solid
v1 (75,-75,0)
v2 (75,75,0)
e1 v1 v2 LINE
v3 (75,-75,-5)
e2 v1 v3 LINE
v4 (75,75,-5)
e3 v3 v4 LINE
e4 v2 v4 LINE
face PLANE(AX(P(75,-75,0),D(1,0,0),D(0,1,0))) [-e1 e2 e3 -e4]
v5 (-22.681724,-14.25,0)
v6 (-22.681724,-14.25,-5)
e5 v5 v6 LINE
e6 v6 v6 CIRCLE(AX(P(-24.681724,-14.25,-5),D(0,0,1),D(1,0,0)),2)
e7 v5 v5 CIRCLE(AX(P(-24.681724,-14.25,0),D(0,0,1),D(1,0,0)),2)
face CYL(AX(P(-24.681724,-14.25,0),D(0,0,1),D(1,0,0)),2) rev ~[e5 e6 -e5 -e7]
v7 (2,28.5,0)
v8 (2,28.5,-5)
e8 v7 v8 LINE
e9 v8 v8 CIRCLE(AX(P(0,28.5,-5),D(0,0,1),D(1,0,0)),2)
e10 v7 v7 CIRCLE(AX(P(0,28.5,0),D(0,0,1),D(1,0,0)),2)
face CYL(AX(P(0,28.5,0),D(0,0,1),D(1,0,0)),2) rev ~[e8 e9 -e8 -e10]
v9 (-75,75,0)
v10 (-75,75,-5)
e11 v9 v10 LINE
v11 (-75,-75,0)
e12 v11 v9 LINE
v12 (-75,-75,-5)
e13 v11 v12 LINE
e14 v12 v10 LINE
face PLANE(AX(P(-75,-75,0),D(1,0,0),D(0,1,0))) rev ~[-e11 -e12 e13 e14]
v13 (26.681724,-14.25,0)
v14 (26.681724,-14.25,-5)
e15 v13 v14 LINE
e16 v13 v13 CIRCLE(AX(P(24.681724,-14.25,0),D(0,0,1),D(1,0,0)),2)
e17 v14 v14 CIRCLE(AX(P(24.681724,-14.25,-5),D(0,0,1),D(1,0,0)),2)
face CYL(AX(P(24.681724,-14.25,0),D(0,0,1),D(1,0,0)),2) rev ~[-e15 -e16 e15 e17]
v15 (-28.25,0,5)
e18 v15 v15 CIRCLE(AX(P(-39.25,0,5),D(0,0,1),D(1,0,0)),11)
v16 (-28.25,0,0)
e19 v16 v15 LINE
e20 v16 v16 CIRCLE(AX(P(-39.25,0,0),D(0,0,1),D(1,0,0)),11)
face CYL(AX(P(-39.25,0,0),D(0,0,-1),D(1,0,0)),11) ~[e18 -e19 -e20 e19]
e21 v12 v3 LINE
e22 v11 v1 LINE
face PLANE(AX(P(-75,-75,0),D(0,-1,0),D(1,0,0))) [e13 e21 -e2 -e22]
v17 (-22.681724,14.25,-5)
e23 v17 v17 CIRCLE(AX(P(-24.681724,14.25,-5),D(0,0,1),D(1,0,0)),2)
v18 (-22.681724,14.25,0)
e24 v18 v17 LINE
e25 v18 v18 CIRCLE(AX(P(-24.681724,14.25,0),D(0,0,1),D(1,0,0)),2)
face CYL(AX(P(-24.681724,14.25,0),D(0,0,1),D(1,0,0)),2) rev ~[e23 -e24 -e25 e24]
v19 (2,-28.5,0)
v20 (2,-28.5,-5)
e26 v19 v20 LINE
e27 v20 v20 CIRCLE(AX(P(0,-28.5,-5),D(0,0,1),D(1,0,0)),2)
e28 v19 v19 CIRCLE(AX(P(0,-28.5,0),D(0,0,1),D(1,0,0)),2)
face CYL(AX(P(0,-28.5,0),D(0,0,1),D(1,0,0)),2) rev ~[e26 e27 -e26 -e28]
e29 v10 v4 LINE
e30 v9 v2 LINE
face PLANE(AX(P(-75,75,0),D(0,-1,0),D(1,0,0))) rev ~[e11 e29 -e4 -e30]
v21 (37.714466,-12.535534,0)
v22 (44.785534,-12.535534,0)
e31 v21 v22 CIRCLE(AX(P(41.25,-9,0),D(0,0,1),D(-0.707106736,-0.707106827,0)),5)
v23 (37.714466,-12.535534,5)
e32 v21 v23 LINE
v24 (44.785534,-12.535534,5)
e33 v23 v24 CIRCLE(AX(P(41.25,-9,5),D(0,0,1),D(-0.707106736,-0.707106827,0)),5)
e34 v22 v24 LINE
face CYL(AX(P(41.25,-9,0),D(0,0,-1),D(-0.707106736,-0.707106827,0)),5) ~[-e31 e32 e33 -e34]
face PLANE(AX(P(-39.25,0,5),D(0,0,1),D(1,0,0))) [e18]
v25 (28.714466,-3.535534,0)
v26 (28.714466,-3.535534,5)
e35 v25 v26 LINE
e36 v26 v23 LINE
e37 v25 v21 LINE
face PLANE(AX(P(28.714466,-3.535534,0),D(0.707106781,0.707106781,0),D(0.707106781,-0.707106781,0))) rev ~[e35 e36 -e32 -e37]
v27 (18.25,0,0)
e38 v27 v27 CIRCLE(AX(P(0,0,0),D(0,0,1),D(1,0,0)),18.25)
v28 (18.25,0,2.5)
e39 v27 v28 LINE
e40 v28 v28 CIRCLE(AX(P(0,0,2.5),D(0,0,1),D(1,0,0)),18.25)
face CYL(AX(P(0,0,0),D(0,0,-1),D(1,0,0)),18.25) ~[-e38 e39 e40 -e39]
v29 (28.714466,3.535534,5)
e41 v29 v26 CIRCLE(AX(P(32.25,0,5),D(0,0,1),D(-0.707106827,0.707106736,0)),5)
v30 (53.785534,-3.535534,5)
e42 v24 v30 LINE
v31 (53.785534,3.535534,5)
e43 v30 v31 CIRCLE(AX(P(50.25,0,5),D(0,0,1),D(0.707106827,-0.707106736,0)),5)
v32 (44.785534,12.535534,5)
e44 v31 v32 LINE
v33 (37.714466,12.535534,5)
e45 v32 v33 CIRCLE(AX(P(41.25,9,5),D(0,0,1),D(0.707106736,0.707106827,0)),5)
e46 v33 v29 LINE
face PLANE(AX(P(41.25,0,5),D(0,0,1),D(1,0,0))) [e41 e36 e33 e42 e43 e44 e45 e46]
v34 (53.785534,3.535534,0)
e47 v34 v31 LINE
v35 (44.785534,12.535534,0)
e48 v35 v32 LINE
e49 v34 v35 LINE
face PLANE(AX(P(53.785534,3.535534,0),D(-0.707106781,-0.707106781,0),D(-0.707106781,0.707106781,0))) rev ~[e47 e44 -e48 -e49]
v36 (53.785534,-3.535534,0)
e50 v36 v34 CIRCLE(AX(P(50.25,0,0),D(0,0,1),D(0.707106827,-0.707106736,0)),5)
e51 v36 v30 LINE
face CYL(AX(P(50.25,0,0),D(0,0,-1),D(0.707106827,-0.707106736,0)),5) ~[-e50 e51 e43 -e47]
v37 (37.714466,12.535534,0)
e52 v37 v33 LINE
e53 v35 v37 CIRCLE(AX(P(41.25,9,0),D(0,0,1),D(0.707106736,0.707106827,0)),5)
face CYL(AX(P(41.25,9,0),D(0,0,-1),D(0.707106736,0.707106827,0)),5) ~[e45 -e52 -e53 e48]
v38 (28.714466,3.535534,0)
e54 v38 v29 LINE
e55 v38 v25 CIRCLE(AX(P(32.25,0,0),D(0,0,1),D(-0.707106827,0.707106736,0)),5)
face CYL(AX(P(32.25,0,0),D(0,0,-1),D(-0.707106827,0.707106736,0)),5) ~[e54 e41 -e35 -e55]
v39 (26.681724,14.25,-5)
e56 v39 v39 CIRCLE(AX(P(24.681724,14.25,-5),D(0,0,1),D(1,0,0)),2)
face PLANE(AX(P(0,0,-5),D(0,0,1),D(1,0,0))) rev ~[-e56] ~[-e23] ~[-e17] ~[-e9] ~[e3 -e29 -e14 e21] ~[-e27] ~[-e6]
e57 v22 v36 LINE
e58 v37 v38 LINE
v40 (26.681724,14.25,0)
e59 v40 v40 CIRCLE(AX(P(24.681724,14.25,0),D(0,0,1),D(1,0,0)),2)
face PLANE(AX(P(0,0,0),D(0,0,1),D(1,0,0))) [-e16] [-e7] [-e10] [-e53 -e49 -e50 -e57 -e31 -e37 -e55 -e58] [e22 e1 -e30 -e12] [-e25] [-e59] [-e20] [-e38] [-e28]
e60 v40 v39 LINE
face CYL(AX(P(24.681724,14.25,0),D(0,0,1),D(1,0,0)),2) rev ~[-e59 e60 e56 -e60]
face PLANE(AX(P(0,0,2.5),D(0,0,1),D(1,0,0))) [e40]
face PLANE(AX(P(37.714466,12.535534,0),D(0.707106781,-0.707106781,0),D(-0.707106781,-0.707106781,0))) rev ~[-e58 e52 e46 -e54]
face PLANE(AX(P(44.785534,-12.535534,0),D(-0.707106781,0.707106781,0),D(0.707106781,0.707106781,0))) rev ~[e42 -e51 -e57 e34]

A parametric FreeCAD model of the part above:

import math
import FreeCAD as App
import Part
import Sketcher
Q = App.Units.Quantity


def add_polygon(sketch, points):
    """Adds a closed chain of lines whose ends are joined by coincident constraints."""
    first, n = sketch.GeometryCount, len(points)
    for a, b in zip(points, points[1:] + points[:1]):
        sketch.addGeometry(Part.LineSegment(App.Vector(*a, 0), App.Vector(*b, 0)), False)
    for i in range(n):
        sketch.addConstraint(Sketcher.Constraint("Coincident", first + i, 2, first + (i + 1) % n, 1))

doc = App.newDocument("Part")
body = doc.addObject("PartDesign::Body", "Body")

sketch1 = body.newObject("Sketcher::SketchObject", "Sketch")
sketch1.AttachmentSupport = (doc.getObject("XY_Plane"), [""])
sketch1.MapMode = "FlatFace"
add_polygon(sketch1, [(-75, 75), (-75, -75), (75, -75), (75, 75)])
sketch1.addConstraint([
    Sketcher.Constraint("Vertical", 0),
    Sketcher.Constraint("Horizontal", 1),
    Sketcher.Constraint("Vertical", 2),
    Sketcher.Constraint("Horizontal", 3),
    Sketcher.Constraint("Symmetric", 0, 2, 2, 2, -1, 1),
    Sketcher.Constraint("Equal", 3, 0),
    Sketcher.Constraint("DistanceX", 1, 1, 1, 2, Q("150 mm")),
])
pad1 = body.newObject("PartDesign::Pad", "Pad")
pad1.Profile = sketch1
pad1.Length = 5
pad1.Reversed = True

sketch2 = body.newObject("Sketcher::SketchObject", "Sketch001")
sketch2.AttachmentSupport = (doc.getObject("XY_Plane"), [""])
sketch2.MapMode = "FlatFace"
sketch2.addGeometry(Part.Circle(App.Vector(0, 0, 0), App.Vector(0, 0, 1), 18), False)
sketch2.addConstraint([
    Sketcher.Constraint("Coincident", 0, 3, -1, 1),
    Sketcher.Constraint("Diameter", 0, Q("36.5 mm")),
])
pad2 = body.newObject("PartDesign::Pad", "Pad001")
pad2.Profile = sketch2
pad2.Length = 2.5

sketch3 = body.newObject("Sketcher::SketchObject", "Sketch002")
sketch3.AttachmentSupport = (doc.getObject("XY_Plane"), [""])
sketch3.MapMode = "FlatFace"
sketch3.addGeometry([
    Part.Circle(App.Vector(-39, 0, 0), App.Vector(0, 0, 1), 11),
    Part.LineSegment(App.Vector(38, 13, 0), App.Vector(29, 4, 0)),
    Part.ArcOfCircle(Part.Circle(App.Vector(32, 0, 0), App.Vector(0, 0, 1), 5), math.radians(135), math.radians(225)),
    Part.LineSegment(App.Vector(29, -4, 0), App.Vector(38, -13, 0)),
    Part.ArcOfCircle(Part.Circle(App.Vector(41, -9, 0), App.Vector(0, 0, 1), 5), math.radians(-135), math.radians(-45)),
    Part.LineSegment(App.Vector(45, -13, 0), App.Vector(54, -4, 0)),
    Part.ArcOfCircle(Part.Circle(App.Vector(50, 0, 0), App.Vector(0, 0, 1), 5), math.radians(-45), math.radians(45)),
    Part.LineSegment(App.Vector(54, 4, 0), App.Vector(45, 13, 0)),
    Part.ArcOfCircle(Part.Circle(App.Vector(41, 9, 0), App.Vector(0, 0, 1), 5), math.radians(45), math.radians(135)),
], False)
sketch3.addConstraint([
    Sketcher.Constraint("Tangent", 1, 2, 2, 1),
    Sketcher.Constraint("Tangent", 2, 2, 3, 1),
    Sketcher.Constraint("Tangent", 3, 2, 4, 1),
    Sketcher.Constraint("Tangent", 4, 2, 5, 1),
    Sketcher.Constraint("Tangent", 5, 2, 6, 1),
    Sketcher.Constraint("Tangent", 6, 2, 7, 1),
    Sketcher.Constraint("Tangent", 7, 2, 8, 1),
    Sketcher.Constraint("Tangent", 8, 2, 1, 1),
    Sketcher.Constraint("Equal", 2, 4),
    Sketcher.Constraint("Equal", 4, 6),
    Sketcher.Constraint("Equal", 6, 8),
    Sketcher.Constraint("Symmetric", 4, 3, 8, 3, -1),
    Sketcher.Constraint("PointOnObject", 0, 3, -1),
    Sketcher.Constraint("PointOnObject", 2, 3, -1),
    Sketcher.Constraint("PointOnObject", 6, 3, -1),
    Sketcher.Constraint("Perpendicular", 1, 3),
    Sketcher.Constraint("Perpendicular", 3, 5),
    Sketcher.Constraint("Diameter", 0, Q("22 mm")),
    Sketcher.Constraint("Radius", 2, Q("5 mm")),
    Sketcher.Constraint("DistanceY", 4, 3, -1, 1, Q("9 mm")),
    Sketcher.Constraint("DistanceX", 0, 3, 2, 3, Q("71.5 mm")),
    Sketcher.Constraint("DistanceX", 0, 3, -1, 1, Q("39.25 mm")),
])
pad3 = body.newObject("PartDesign::Pad", "Pad002")
pad3.Profile = sketch3
pad3.Length = 5

sketch4 = body.newObject("Sketcher::SketchObject", "Sketch003")
sketch4.AttachmentSupport = (doc.getObject("XY_Plane"), [""])
sketch4.MapMode = "FlatFace"
sketch4.addGeometry([
    Part.Circle(App.Vector(0, 28.5, 0), App.Vector(0, 0, 1), 2),
    Part.Circle(App.Vector(-24.7, 14.2, 0), App.Vector(0, 0, 1), 2),
    Part.Circle(App.Vector(-24.7, -14.2, 0), App.Vector(0, 0, 1), 2),
    Part.Circle(App.Vector(0, -28.5, 0), App.Vector(0, 0, 1), 2),
    Part.Circle(App.Vector(24.7, -14.2, 0), App.Vector(0, 0, 1), 2),
    Part.Circle(App.Vector(24.7, 14.2, 0), App.Vector(0, 0, 1), 2),
], False)
sketch4.addConstraint([
    Sketcher.Constraint("Equal", 0, 1),
    Sketcher.Constraint("Equal", 1, 2),
    Sketcher.Constraint("Equal", 2, 3),
    Sketcher.Constraint("Equal", 3, 4),
    Sketcher.Constraint("Equal", 4, 5),
    Sketcher.Constraint("Symmetric", 0, 3, 3, 3, -1, 1),
    Sketcher.Constraint("Symmetric", 1, 3, 4, 3, -1, 1),
    Sketcher.Constraint("Symmetric", 2, 3, 5, 3, -1, 1),
    Sketcher.Constraint("Symmetric", 2, 3, 4, 3, -2),
    Sketcher.Constraint("PointOnObject", 0, 3, -2),
    Sketcher.Constraint("Diameter", 0, Q("4 mm")),
    Sketcher.Constraint("DistanceY", 3, 3, 0, 3, Q("57 mm")),
    Sketcher.Constraint("DistanceY", 2, 3, 1, 3, Q("28.5 mm")),
    Sketcher.Constraint("DistanceX", 1, 3, -1, 1, Q("24.681724 mm")),
])
pocket1 = body.newObject("PartDesign::Pocket", "Pocket")
pocket1.Profile = sketch4
pocket1.Type = "ThroughAll"

doc.recompute()
